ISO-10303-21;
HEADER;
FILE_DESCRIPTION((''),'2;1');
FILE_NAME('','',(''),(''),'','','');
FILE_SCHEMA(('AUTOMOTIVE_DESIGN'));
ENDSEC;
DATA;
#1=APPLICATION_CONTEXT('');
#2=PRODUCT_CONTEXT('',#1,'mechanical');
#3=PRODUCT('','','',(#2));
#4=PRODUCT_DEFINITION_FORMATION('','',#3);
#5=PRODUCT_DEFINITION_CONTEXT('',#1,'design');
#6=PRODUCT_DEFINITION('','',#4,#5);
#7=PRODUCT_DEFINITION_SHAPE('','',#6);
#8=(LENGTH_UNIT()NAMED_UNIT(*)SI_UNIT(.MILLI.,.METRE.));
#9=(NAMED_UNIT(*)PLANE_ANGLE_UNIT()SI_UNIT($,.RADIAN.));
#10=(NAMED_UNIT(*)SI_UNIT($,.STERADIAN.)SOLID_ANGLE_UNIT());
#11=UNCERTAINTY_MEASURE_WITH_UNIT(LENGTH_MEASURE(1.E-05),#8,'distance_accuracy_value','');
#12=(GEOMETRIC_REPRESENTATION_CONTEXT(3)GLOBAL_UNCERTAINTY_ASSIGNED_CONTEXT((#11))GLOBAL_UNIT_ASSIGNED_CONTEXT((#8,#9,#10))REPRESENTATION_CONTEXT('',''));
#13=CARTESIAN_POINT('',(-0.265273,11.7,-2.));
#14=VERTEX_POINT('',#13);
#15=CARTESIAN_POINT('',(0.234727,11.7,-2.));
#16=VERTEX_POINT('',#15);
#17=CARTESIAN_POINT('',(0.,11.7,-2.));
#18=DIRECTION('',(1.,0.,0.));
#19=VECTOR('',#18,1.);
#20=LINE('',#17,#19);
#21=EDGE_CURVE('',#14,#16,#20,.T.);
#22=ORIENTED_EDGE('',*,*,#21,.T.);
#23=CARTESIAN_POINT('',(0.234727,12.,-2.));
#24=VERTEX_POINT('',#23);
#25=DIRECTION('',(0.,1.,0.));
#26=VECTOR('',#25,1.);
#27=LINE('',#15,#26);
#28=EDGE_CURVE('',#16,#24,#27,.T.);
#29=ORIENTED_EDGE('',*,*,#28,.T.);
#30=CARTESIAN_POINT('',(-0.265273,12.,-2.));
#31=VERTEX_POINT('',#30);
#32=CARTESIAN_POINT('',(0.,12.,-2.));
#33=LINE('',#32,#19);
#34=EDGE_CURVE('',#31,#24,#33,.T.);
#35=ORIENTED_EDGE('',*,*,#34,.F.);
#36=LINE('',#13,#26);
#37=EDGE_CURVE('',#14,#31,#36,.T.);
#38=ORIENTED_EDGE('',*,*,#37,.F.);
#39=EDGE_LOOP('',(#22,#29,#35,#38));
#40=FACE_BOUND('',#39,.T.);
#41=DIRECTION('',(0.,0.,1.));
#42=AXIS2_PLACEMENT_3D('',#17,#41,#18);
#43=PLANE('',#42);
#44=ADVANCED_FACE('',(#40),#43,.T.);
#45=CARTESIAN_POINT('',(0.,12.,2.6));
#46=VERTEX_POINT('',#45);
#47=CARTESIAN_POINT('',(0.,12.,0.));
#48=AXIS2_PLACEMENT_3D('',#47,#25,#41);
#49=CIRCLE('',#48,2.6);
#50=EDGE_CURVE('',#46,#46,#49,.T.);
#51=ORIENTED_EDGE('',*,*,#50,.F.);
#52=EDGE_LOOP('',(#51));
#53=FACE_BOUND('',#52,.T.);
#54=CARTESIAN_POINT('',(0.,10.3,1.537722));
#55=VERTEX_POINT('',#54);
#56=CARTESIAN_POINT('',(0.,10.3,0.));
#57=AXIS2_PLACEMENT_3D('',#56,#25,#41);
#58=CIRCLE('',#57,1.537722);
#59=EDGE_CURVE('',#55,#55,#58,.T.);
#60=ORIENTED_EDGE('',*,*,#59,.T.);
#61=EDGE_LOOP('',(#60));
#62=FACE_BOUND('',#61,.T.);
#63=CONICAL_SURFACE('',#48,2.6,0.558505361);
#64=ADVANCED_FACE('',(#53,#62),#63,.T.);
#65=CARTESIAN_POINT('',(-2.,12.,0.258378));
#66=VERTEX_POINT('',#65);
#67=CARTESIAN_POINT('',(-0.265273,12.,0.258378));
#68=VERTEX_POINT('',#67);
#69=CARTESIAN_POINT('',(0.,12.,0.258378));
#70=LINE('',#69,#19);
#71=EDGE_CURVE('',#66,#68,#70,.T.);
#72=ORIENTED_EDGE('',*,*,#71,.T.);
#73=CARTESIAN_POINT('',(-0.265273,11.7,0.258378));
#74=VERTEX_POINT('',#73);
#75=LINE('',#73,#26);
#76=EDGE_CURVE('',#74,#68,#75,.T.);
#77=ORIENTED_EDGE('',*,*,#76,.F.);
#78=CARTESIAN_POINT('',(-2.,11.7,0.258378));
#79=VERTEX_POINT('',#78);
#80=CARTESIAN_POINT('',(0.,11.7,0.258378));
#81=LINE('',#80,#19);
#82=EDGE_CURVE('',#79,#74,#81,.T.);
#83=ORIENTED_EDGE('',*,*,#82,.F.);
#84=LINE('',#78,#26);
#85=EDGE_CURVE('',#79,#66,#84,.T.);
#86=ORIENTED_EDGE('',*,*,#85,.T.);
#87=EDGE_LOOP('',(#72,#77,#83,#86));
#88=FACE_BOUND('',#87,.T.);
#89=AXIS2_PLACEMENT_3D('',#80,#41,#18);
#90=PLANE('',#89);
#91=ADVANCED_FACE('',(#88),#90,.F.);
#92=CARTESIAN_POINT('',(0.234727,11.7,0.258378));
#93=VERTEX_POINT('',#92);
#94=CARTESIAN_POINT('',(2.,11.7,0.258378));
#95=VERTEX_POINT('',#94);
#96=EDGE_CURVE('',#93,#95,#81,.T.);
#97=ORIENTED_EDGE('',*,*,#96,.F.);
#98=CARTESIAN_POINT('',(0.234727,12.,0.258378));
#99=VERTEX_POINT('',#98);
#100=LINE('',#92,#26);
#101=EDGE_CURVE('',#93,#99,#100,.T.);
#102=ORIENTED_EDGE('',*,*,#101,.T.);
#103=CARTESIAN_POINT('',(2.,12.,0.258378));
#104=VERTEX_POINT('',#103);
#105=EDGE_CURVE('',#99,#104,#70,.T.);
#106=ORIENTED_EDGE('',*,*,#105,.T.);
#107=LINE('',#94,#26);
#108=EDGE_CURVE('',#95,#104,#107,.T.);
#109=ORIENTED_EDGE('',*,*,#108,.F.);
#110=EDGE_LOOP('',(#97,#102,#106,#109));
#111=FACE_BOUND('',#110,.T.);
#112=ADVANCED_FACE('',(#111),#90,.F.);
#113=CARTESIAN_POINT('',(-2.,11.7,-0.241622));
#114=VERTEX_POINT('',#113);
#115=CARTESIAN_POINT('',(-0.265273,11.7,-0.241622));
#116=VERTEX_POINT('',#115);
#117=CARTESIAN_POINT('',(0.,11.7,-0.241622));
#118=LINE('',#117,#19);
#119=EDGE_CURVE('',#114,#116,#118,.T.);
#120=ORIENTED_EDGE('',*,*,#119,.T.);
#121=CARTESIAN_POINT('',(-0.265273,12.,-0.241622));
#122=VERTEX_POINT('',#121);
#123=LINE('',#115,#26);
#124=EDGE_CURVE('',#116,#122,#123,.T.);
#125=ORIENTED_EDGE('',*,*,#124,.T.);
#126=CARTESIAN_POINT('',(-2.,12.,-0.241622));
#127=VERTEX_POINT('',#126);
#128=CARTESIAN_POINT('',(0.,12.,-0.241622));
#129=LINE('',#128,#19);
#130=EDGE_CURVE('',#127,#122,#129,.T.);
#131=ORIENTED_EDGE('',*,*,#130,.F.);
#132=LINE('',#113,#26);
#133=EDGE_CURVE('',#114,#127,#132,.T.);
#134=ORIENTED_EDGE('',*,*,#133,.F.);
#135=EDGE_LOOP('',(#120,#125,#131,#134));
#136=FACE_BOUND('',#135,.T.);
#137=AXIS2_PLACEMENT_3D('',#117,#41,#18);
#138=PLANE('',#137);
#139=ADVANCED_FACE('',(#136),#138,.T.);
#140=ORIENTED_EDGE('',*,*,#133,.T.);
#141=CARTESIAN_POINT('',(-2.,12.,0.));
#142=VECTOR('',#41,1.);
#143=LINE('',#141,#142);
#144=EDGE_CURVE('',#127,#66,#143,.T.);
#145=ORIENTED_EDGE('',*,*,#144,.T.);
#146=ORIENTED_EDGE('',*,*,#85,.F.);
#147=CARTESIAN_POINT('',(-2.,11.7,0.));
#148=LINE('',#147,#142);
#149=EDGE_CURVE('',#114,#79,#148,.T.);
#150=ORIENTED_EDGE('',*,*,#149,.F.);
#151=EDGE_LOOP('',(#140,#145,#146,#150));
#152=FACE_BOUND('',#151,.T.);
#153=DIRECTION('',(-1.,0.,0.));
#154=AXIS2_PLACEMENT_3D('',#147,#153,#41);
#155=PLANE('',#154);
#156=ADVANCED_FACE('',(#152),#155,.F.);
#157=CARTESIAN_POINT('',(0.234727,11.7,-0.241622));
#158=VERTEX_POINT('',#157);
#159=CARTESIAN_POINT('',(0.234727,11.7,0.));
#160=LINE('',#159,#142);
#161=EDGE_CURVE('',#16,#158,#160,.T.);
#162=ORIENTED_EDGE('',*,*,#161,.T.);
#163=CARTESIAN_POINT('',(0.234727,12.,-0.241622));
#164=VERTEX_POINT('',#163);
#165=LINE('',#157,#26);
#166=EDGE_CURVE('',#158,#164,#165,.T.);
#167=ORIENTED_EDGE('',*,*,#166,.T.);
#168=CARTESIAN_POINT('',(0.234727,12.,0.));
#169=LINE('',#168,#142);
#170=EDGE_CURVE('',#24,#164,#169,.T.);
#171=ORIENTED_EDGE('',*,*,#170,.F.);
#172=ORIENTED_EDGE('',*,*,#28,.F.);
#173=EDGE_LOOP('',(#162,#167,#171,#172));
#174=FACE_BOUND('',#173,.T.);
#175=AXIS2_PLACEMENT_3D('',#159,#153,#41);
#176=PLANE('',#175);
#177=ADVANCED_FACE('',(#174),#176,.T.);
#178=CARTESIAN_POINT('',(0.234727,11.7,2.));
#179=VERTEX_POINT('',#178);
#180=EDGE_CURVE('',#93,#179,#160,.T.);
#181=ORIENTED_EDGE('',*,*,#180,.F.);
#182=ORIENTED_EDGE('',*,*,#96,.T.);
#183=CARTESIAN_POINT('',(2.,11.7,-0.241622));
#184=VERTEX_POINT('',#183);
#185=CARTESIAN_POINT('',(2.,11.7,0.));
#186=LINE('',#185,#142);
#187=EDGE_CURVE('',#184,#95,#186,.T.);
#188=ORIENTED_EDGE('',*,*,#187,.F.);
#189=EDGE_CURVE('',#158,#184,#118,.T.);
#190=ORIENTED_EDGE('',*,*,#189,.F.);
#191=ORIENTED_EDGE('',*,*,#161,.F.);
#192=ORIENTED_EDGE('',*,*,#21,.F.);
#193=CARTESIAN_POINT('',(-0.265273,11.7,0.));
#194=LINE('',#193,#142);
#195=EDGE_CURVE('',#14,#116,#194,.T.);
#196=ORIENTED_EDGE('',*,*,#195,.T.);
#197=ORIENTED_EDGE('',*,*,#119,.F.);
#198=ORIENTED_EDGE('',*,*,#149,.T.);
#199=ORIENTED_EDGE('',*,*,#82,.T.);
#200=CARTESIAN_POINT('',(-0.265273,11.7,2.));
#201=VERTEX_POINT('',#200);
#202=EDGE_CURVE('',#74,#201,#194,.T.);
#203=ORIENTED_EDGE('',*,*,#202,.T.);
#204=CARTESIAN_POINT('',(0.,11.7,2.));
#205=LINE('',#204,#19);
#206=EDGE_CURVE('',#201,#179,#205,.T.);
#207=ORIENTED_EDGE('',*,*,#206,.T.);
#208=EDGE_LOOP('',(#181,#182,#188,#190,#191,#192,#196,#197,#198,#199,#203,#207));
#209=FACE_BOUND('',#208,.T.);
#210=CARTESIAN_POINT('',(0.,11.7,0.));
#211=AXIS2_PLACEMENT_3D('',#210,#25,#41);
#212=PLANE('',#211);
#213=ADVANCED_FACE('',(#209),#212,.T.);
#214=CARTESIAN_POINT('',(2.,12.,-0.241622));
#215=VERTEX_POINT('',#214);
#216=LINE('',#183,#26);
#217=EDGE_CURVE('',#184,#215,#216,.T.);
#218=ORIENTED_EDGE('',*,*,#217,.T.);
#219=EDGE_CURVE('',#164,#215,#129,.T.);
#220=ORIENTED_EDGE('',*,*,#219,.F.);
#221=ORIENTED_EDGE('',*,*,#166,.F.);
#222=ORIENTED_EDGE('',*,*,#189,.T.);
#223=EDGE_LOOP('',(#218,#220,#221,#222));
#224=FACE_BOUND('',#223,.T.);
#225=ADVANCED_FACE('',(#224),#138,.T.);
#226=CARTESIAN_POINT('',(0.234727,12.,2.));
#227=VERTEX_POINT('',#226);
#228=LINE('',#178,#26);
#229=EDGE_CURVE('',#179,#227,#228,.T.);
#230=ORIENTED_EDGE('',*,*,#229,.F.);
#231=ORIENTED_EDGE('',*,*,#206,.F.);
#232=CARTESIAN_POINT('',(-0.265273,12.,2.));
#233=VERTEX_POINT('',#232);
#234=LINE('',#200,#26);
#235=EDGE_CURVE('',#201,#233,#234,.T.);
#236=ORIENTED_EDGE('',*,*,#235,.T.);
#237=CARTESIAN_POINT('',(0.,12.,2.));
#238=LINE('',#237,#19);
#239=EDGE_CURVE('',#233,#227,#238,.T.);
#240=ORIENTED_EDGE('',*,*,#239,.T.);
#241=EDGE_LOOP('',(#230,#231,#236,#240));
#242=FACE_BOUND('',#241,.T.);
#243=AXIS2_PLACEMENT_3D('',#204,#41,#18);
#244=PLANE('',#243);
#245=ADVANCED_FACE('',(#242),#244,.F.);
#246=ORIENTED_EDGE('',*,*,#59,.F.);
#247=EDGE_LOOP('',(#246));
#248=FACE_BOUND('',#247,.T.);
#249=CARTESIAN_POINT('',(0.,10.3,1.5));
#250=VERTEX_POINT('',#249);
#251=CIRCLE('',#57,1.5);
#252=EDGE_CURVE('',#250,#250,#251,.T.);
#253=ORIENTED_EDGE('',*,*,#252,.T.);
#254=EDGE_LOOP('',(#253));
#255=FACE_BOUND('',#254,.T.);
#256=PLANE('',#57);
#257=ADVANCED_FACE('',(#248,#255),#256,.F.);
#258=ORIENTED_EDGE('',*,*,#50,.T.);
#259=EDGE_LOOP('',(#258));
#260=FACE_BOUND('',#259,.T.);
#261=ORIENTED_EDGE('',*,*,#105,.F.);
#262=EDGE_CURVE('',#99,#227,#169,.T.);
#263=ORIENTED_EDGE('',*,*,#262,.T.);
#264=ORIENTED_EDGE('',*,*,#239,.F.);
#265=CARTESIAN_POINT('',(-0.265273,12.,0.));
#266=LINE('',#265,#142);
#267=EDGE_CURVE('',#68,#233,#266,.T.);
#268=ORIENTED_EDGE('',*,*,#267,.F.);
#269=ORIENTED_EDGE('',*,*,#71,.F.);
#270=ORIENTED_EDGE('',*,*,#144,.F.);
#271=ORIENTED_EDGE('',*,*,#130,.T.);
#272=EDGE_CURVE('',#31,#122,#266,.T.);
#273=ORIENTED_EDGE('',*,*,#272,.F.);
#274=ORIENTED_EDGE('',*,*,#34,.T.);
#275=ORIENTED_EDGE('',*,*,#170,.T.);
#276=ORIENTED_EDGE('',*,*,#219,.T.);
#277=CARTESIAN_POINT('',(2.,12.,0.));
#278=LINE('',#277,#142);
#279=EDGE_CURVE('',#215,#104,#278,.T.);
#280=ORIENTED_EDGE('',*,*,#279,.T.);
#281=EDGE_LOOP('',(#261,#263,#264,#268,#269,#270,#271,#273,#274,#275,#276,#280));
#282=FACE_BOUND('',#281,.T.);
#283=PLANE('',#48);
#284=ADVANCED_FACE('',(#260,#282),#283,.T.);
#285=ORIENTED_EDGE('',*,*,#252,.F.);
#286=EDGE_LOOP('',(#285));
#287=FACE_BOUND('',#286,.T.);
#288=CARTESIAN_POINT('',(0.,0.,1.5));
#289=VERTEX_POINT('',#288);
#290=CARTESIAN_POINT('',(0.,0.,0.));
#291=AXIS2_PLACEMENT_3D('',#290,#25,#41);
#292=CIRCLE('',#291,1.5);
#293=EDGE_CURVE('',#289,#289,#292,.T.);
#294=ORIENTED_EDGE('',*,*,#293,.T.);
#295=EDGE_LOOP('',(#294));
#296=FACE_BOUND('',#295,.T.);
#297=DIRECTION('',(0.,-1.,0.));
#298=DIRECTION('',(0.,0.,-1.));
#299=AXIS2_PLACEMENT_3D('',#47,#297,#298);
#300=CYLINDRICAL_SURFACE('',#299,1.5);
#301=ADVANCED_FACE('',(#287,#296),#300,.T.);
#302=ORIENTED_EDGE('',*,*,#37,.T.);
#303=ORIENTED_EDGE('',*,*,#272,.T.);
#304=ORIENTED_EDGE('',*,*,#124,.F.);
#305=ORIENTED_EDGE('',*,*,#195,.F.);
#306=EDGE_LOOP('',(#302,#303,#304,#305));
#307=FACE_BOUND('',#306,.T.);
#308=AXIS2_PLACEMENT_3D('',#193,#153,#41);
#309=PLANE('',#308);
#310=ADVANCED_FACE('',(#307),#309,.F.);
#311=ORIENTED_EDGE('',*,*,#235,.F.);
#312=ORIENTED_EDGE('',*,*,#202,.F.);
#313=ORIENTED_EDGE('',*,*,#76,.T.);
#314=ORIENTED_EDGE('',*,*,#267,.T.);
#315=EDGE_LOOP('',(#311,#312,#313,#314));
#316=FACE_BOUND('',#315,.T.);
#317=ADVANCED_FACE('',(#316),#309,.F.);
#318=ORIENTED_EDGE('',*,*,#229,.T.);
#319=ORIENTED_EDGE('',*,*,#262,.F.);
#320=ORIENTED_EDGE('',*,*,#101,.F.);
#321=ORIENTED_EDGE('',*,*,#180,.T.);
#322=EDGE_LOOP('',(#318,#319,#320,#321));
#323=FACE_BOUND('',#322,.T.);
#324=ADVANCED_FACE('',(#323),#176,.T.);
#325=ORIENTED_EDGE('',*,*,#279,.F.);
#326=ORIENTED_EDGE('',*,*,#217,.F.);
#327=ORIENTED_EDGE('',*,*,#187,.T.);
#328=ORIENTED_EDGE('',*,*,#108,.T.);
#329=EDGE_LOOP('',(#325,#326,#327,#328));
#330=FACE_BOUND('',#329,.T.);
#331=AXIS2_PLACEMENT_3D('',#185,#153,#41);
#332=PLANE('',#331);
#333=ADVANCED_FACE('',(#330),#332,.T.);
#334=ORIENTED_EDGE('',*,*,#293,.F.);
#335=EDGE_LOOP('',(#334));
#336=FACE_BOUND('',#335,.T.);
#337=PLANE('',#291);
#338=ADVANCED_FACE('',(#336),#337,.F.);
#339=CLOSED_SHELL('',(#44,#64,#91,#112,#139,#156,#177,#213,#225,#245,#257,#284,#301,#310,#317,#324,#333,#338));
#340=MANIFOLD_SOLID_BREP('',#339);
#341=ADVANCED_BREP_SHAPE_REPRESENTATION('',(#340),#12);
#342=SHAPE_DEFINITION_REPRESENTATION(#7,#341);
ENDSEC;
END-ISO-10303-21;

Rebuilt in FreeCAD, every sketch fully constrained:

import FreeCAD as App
import Part
import Sketcher

V = App.Vector
Q = App.Units.Quantity

doc = App.newDocument("Part")
body = doc.addObject("PartDesign::Body", "Body")

# Sketch on XZ plane
sketch1 = body.newObject("Sketcher::SketchObject", "Sketch")
sketch1.AttachmentSupport = (doc.getObject("XZ_Plane"), [""])
sketch1.MapMode = "FlatFace"
sketch1.addGeometry(Part.Circle(V(0, 0, 0), V(0, 0, 1), 1.5), False)
sketch1.addConstraint(Sketcher.Constraint("Coincident", 0, 3, -1, 1))
sketch1.addConstraint(Sketcher.Constraint("Diameter", 0, Q("3 mm")))
pad1 = body.newObject("PartDesign::Pad", "Pad")
pad1.Profile = sketch1
pad1.Length = 12
pad1.Reversed = True

# Sketch on XZ plane
sketch2 = body.newObject("Sketcher::SketchObject", "Sketch001")
sketch2.AttachmentSupport = (doc.getObject("XZ_Plane"), [""])
sketch2.MapMode = "FlatFace"
sketch2.AttachmentOffset = App.Placement(V(0, 0, -12), App.Rotation())
sketch2.addGeometry(Part.Circle(V(0, 0, 0), V(0, 0, 1), 2.6), False)
sketch2.addConstraint(Sketcher.Constraint("Coincident", 0, 3, -1, 1))
sketch2.addConstraint(Sketcher.Constraint("Diameter", 0, Q("5.2 mm")))
pad2 = body.newObject("PartDesign::Pad", "Pad001")
pad2.Profile = sketch2
pad2.Length = 1.7
pad2.TaperAngle = -32

# Sketch on XZ plane
sketch3 = body.newObject("Sketcher::SketchObject", "Sketch002")
sketch3.AttachmentSupport = (doc.getObject("XZ_Plane"), [""])
sketch3.MapMode = "FlatFace"
sketch3.AttachmentOffset = App.Placement(V(0, 0, -12), App.Rotation())
sketch3.addGeometry(Part.LineSegment(V(-0.265273, -2, 0), V(-0.265273, -0.241622, 0)), False)
sketch3.addGeometry(Part.LineSegment(V(-0.265273, -0.241622, 0), V(-2, -0.241622, 0)), False)
sketch3.addGeometry(Part.LineSegment(V(-2, -0.241622, 0), V(-2, 0.258378, 0)), False)
sketch3.addGeometry(Part.LineSegment(V(-2, 0.258378, 0), V(-0.265273, 0.258378, 0)), False)
sketch3.addGeometry(Part.LineSegment(V(-0.265273, 0.258378, 0), V(-0.265273, 2, 0)), False)
sketch3.addGeometry(Part.LineSegment(V(-0.265273, 2, 0), V(0.234727, 2, 0)), False)
sketch3.addGeometry(Part.LineSegment(V(0.234727, 2, 0), V(0.234727, 0.258378, 0)), False)
sketch3.addGeometry(Part.LineSegment(V(0.234727, 0.258378, 0), V(2, 0.258378, 0)), False)
sketch3.addGeometry(Part.LineSegment(V(2, 0.258378, 0), V(2, -0.241622, 0)), False)
sketch3.addGeometry(Part.LineSegment(V(2, -0.241622, 0), V(0.234727, -0.241622, 0)), False)
sketch3.addGeometry(Part.LineSegment(V(0.234727, -0.241622, 0), V(0.234727, -2, 0)), False)
sketch3.addGeometry(Part.LineSegment(V(0.234727, -2, 0), V(-0.265273, -2, 0)), False)
sketch3.addConstraint(Sketcher.Constraint("Coincident", 0, 2, 1, 1))
sketch3.addConstraint(Sketcher.Constraint("Coincident", 1, 2, 2, 1))
sketch3.addConstraint(Sketcher.Constraint("Coincident", 2, 2, 3, 1))
sketch3.addConstraint(Sketcher.Constraint("Coincident", 3, 2, 4, 1))
sketch3.addConstraint(Sketcher.Constraint("Coincident", 4, 2, 5, 1))
sketch3.addConstraint(Sketcher.Constraint("Coincident", 5, 2, 6, 1))
sketch3.addConstraint(Sketcher.Constraint("Coincident", 6, 2, 7, 1))
sketch3.addConstraint(Sketcher.Constraint("Coincident", 7, 2, 8, 1))
sketch3.addConstraint(Sketcher.Constraint("Coincident", 8, 2, 9, 1))
sketch3.addConstraint(Sketcher.Constraint("Coincident", 9, 2, 10, 1))
sketch3.addConstraint(Sketcher.Constraint("Coincident", 10, 2, 11, 1))
sketch3.addConstraint(Sketcher.Constraint("Coincident", 11, 2, 0, 1))
sketch3.addConstraint(Sketcher.Constraint("Vertical", 0))
sketch3.addConstraint(Sketcher.Constraint("Horizontal", 1))
sketch3.addConstraint(Sketcher.Constraint("Vertical", 2))
sketch3.addConstraint(Sketcher.Constraint("Horizontal", 3))
sketch3.addConstraint(Sketcher.Constraint("Vertical", 4))
sketch3.addConstraint(Sketcher.Constraint("Horizontal", 5))
sketch3.addConstraint(Sketcher.Constraint("Vertical", 6))
sketch3.addConstraint(Sketcher.Constraint("Horizontal", 7))
sketch3.addConstraint(Sketcher.Constraint("Vertical", 8))
sketch3.addConstraint(Sketcher.Constraint("Horizontal", 9))
sketch3.addConstraint(Sketcher.Constraint("Vertical", 10))
sketch3.addConstraint(Sketcher.Constraint("Horizontal", 11))
sketch3.addConstraint(Sketcher.Constraint("Symmetric", 2, 2, 7, 2, -2))
sketch3.addConstraint(Sketcher.Constraint("Symmetric", 5, 2, 10, 2, -1))
sketch3.addConstraint(Sketcher.Constraint("Horizontal", 1, 2, 8, 2))
sketch3.addConstraint(Sketcher.Constraint("Vertical", 0, 2, 3, 2))
sketch3.addConstraint(Sketcher.Constraint("Equal", 11, 2))
sketch3.addConstraint(Sketcher.Constraint("DistanceX", 5, 1, 5, 2, Q("0.5 mm")))
sketch3.addConstraint(Sketcher.Constraint("DistanceX", 1, 2, -1, 1, Q("2 mm")))
sketch3.addConstraint(Sketcher.Constraint("DistanceY", -1, 1, 4, 2, Q("2 mm")))
sketch3.addConstraint(Sketcher.Constraint("DistanceY", 0, 1, 0, 2, Q("1.758378 mm")))
sketch3.addConstraint(Sketcher.Constraint("DistanceX", 1, 2, 1, 1, Q("1.734727 mm")))
pocket1 = body.newObject("PartDesign::Pocket", "Pocket")
pocket1.Profile = sketch3
pocket1.Length = 0.3
pocket1.Reversed = True

doc.recompute()
